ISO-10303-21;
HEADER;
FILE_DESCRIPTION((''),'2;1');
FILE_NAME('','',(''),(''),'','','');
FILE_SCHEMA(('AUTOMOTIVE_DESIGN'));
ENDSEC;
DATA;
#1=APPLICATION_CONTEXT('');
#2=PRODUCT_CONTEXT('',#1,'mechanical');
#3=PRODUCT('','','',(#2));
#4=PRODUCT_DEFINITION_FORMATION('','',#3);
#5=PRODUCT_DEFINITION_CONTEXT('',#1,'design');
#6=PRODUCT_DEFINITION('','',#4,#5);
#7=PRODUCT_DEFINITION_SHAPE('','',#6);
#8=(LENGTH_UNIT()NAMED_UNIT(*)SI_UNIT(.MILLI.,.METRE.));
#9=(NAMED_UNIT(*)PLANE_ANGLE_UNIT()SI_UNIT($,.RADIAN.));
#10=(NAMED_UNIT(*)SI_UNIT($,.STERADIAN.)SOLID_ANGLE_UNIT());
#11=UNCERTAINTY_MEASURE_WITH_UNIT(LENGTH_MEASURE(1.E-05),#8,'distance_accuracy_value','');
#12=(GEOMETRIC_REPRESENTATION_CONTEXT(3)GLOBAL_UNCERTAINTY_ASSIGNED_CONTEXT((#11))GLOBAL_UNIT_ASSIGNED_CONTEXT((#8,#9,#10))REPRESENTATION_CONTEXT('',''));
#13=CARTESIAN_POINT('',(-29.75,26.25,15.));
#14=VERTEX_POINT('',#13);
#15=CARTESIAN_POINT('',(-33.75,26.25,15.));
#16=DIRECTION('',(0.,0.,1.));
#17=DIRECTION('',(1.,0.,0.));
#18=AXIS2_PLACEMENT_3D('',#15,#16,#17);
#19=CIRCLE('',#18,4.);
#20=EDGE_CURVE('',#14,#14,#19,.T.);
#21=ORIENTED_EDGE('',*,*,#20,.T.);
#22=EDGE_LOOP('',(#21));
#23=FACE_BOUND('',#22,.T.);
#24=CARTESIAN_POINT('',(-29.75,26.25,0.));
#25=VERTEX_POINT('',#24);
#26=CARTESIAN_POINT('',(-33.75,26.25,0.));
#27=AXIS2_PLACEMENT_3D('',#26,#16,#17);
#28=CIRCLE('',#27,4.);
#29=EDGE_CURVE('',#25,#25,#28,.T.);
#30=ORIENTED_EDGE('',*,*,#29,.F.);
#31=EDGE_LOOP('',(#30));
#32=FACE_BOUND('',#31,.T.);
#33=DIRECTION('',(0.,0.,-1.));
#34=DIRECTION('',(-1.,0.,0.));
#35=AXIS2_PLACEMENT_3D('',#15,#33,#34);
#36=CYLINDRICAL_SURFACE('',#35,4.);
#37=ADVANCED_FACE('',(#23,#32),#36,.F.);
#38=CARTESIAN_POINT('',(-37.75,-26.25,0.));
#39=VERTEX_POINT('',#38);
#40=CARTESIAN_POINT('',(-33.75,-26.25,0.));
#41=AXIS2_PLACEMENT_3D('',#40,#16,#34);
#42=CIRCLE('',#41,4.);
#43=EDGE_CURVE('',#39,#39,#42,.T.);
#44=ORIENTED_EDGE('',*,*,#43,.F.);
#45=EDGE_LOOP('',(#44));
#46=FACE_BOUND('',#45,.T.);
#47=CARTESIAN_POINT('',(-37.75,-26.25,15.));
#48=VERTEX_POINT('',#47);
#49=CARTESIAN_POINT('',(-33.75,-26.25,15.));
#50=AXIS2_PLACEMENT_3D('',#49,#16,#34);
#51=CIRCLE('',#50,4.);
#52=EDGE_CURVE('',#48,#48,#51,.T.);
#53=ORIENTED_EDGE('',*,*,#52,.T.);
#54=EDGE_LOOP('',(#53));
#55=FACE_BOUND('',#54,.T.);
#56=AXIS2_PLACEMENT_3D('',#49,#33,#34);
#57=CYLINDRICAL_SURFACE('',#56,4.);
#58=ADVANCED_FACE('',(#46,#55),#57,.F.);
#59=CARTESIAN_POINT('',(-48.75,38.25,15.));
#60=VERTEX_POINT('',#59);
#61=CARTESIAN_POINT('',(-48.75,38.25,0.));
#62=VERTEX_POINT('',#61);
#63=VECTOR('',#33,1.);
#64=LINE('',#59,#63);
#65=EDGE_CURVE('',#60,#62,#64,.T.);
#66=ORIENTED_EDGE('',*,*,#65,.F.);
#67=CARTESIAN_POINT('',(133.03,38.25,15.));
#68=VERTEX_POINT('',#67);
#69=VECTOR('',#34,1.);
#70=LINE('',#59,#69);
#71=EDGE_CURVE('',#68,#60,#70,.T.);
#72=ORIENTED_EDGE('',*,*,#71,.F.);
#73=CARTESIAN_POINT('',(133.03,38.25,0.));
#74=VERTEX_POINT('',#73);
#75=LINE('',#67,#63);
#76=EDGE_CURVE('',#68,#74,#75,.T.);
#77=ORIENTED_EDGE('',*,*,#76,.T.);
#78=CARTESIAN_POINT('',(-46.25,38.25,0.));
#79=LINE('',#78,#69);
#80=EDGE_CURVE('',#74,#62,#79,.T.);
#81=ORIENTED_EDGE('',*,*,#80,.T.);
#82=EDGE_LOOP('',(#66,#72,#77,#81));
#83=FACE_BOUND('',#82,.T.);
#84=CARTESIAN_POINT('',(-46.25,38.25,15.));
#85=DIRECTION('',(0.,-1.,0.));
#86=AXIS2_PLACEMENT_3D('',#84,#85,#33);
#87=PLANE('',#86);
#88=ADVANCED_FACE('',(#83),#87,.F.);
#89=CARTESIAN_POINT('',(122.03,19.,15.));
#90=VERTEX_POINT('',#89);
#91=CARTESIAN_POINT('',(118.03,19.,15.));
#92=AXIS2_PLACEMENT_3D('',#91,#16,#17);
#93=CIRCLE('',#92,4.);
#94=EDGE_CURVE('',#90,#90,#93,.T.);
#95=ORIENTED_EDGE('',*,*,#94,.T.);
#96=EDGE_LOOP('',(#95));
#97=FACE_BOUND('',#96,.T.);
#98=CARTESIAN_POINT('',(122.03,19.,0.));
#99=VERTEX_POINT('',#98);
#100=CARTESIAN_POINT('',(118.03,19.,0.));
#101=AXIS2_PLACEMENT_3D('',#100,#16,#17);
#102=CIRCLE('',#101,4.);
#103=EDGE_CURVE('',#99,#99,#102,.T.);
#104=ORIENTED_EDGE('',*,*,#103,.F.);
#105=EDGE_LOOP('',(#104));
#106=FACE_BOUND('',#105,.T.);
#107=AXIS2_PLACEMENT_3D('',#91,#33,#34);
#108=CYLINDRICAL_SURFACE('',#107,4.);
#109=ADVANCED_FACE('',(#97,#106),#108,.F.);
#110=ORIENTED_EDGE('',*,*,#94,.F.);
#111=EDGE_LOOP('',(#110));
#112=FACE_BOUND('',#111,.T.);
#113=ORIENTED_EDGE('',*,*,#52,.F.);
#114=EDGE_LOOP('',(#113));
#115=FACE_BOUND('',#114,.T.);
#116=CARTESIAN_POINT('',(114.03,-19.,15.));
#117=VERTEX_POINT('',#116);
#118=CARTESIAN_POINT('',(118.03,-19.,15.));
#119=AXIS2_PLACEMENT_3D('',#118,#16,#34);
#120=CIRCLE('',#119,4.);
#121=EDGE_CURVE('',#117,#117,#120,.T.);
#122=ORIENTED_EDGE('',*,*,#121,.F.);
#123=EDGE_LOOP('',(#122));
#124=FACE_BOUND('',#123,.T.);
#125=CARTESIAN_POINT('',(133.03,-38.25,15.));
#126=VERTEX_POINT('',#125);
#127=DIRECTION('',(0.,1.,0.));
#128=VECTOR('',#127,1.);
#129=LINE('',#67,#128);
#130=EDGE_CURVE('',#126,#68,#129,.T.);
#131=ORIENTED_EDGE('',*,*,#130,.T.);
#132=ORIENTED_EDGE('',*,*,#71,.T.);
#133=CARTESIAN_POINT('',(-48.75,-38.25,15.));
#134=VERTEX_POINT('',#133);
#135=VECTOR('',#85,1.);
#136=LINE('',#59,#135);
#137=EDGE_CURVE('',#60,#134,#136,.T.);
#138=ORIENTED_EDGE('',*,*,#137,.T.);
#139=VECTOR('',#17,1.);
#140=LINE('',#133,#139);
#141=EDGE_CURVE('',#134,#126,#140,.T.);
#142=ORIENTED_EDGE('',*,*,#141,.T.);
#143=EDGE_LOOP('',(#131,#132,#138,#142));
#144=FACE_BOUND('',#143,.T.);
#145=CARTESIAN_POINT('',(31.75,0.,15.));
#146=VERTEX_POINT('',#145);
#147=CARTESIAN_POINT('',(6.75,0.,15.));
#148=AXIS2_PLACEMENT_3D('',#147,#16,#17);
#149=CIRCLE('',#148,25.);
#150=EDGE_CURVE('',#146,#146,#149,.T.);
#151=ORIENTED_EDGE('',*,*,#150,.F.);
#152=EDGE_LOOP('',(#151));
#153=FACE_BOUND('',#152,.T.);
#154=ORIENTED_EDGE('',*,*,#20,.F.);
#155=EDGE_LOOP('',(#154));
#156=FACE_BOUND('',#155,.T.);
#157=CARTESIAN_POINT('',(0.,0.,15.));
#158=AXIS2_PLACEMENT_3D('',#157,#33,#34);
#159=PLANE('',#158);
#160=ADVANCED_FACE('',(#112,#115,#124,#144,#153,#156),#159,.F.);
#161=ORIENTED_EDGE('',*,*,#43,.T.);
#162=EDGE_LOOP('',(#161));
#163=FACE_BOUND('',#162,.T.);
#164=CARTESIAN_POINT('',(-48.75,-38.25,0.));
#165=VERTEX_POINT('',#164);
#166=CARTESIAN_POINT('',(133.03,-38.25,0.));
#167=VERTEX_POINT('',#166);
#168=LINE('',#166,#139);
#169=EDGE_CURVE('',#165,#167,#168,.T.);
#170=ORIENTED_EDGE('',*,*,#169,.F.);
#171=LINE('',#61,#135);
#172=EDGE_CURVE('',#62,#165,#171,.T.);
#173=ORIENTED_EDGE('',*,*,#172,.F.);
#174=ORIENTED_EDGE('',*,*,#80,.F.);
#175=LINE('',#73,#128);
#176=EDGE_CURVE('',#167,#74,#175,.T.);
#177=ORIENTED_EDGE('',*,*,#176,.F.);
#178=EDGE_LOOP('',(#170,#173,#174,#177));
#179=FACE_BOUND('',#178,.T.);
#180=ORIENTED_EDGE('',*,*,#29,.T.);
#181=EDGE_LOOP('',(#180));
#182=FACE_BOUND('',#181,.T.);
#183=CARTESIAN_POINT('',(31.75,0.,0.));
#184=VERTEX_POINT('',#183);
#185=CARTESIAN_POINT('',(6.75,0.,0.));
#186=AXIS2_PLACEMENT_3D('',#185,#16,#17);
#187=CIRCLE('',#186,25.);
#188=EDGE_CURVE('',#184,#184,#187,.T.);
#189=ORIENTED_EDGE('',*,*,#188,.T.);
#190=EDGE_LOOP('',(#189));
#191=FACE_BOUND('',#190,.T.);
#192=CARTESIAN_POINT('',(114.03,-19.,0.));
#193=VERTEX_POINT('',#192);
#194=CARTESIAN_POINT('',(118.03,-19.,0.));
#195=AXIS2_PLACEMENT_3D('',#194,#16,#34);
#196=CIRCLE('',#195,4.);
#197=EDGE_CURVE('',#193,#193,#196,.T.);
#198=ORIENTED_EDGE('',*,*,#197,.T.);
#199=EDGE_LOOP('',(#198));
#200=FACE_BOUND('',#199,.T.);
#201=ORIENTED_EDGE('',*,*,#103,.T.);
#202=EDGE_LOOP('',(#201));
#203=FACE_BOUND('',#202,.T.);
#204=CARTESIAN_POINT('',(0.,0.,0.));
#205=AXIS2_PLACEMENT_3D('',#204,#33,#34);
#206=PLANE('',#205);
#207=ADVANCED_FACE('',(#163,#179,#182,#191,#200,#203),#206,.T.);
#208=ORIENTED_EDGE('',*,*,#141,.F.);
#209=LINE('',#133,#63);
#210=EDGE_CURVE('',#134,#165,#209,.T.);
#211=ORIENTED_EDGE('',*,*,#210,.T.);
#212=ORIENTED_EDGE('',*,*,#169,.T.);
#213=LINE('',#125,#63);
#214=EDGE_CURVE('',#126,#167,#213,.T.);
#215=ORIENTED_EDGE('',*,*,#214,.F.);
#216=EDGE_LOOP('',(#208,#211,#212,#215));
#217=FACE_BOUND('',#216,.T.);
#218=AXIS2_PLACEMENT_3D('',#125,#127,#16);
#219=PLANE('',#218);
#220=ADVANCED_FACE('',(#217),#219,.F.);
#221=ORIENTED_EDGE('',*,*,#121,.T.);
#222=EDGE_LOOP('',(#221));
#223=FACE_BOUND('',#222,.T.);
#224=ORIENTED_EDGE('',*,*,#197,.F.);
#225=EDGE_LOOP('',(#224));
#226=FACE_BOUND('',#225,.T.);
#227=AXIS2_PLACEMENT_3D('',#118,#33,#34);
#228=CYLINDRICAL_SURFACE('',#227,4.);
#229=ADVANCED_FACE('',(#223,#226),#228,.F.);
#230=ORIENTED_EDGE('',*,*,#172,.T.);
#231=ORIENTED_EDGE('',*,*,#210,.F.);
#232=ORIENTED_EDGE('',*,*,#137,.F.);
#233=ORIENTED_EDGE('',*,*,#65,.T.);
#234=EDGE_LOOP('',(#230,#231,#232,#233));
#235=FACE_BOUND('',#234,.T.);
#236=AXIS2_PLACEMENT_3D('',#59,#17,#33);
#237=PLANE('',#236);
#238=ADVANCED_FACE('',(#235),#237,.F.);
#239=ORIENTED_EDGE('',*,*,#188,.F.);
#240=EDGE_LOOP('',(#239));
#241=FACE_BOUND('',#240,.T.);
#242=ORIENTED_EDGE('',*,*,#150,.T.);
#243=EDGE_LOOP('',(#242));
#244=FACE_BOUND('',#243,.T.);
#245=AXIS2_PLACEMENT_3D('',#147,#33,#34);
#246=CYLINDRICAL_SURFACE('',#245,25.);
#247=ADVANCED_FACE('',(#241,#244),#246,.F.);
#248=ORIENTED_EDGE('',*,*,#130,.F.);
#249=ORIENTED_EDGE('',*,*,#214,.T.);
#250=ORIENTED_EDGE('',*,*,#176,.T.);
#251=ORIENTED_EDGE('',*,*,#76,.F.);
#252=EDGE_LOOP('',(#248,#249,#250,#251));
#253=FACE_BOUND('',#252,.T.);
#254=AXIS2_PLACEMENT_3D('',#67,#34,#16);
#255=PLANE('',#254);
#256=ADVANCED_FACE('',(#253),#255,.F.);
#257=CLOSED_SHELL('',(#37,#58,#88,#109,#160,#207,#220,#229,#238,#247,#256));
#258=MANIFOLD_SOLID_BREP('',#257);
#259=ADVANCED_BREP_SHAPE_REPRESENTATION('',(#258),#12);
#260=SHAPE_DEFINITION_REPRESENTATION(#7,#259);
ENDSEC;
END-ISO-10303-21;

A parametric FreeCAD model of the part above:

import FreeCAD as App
import Part
import Sketcher
Q = App.Units.Quantity


def add_polygon(sketch, points):
    """Adds a closed chain of lines whose ends are joined by coincident constraints."""
    first, n = sketch.GeometryCount, len(points)
    for a, b in zip(points, points[1:] + points[:1]):
        sketch.addGeometry(Part.LineSegment(App.Vector(*a, 0), App.Vector(*b, 0)), False)
    for i in range(n):
        sketch.addConstraint(Sketcher.Constraint("Coincident", first + i, 2, first + (i + 1) % n, 1))

doc = App.newDocument("Part")
body = doc.addObject("PartDesign::Body", "Body")

# Sketch on XY plane
sketch1 = body.newObject("Sketcher::SketchObject", "Sketch")
sketch1.AttachmentSupport = (doc.getObject("XY_Plane"), [""])
sketch1.MapMode = "FlatFace"
add_polygon(sketch1, [(133, 38.2), (-48.8, 38.2), (-48.8, -38.2), (133, -38.2)])  # lines 0-3
sketch1.addGeometry(Part.Circle(App.Vector(118, -19, 0), App.Vector(0, 0, 1), 4), False)  # 4
sketch1.addGeometry(Part.Circle(App.Vector(-33.8, -26.2, 0), App.Vector(0, 0, 1), 4), False)  # 5
sketch1.addGeometry(Part.Circle(App.Vector(118, 19, 0), App.Vector(0, 0, 1), 4), False)  # 6
sketch1.addGeometry(Part.Circle(App.Vector(6.8, 0, 0), App.Vector(0, 0, 1), 25), False)  # 7
sketch1.addGeometry(Part.Circle(App.Vector(-33.8, 26.2, 0), App.Vector(0, 0, 1), 4), False)  # 8
sketch1.addConstraint([
    Sketcher.Constraint("Horizontal", 0),
    Sketcher.Constraint("Vertical", 1),
    Sketcher.Constraint("Horizontal", 2),
    Sketcher.Constraint("Vertical", 3),
    Sketcher.Constraint("Equal", 4, 5),
    Sketcher.Constraint("Equal", 5, 6),
    Sketcher.Constraint("Equal", 6, 8),
    Sketcher.Constraint("Symmetric", 4, 3, 6, 3, -1),
    Sketcher.Constraint("Symmetric", 5, 3, 8, 3, -1),
    Sketcher.Constraint("PointOnObject", 7, 3, -1),
    Sketcher.Constraint("Diameter", 4, Q("8 mm")),
    Sketcher.Constraint("Diameter", 7, Q("50 mm")),
    Sketcher.Constraint("DistanceY", 1, 2, 1, 1, Q("76.5 mm")),
    Sketcher.Constraint("DistanceY", 4, 3, -1, 1, Q("19 mm")),
    Sketcher.Constraint("DistanceX", 0, 2, 8, 3, Q("15 mm")),
    Sketcher.Constraint("DistanceY", 8, 3, 0, 2, Q("12 mm")),
    Sketcher.Constraint("DistanceY", 1, 2, 5, 3, Q("12 mm")),
    Sketcher.Constraint("DistanceX", 4, 3, 2, 2, Q("15 mm")),
    Sketcher.Constraint("DistanceX", 0, 2, 0, 1, Q("181.78 mm")),
    Sketcher.Constraint("DistanceX", 5, 3, 7, 3, Q("40.5 mm")),
    Sketcher.Constraint("DistanceX", -1, 1, 4, 3, Q("118.03 mm")),
])
pad1 = body.newObject("PartDesign::Pad", "Pad")
pad1.Profile = sketch1
pad1.Length = 15

doc.recompute()
